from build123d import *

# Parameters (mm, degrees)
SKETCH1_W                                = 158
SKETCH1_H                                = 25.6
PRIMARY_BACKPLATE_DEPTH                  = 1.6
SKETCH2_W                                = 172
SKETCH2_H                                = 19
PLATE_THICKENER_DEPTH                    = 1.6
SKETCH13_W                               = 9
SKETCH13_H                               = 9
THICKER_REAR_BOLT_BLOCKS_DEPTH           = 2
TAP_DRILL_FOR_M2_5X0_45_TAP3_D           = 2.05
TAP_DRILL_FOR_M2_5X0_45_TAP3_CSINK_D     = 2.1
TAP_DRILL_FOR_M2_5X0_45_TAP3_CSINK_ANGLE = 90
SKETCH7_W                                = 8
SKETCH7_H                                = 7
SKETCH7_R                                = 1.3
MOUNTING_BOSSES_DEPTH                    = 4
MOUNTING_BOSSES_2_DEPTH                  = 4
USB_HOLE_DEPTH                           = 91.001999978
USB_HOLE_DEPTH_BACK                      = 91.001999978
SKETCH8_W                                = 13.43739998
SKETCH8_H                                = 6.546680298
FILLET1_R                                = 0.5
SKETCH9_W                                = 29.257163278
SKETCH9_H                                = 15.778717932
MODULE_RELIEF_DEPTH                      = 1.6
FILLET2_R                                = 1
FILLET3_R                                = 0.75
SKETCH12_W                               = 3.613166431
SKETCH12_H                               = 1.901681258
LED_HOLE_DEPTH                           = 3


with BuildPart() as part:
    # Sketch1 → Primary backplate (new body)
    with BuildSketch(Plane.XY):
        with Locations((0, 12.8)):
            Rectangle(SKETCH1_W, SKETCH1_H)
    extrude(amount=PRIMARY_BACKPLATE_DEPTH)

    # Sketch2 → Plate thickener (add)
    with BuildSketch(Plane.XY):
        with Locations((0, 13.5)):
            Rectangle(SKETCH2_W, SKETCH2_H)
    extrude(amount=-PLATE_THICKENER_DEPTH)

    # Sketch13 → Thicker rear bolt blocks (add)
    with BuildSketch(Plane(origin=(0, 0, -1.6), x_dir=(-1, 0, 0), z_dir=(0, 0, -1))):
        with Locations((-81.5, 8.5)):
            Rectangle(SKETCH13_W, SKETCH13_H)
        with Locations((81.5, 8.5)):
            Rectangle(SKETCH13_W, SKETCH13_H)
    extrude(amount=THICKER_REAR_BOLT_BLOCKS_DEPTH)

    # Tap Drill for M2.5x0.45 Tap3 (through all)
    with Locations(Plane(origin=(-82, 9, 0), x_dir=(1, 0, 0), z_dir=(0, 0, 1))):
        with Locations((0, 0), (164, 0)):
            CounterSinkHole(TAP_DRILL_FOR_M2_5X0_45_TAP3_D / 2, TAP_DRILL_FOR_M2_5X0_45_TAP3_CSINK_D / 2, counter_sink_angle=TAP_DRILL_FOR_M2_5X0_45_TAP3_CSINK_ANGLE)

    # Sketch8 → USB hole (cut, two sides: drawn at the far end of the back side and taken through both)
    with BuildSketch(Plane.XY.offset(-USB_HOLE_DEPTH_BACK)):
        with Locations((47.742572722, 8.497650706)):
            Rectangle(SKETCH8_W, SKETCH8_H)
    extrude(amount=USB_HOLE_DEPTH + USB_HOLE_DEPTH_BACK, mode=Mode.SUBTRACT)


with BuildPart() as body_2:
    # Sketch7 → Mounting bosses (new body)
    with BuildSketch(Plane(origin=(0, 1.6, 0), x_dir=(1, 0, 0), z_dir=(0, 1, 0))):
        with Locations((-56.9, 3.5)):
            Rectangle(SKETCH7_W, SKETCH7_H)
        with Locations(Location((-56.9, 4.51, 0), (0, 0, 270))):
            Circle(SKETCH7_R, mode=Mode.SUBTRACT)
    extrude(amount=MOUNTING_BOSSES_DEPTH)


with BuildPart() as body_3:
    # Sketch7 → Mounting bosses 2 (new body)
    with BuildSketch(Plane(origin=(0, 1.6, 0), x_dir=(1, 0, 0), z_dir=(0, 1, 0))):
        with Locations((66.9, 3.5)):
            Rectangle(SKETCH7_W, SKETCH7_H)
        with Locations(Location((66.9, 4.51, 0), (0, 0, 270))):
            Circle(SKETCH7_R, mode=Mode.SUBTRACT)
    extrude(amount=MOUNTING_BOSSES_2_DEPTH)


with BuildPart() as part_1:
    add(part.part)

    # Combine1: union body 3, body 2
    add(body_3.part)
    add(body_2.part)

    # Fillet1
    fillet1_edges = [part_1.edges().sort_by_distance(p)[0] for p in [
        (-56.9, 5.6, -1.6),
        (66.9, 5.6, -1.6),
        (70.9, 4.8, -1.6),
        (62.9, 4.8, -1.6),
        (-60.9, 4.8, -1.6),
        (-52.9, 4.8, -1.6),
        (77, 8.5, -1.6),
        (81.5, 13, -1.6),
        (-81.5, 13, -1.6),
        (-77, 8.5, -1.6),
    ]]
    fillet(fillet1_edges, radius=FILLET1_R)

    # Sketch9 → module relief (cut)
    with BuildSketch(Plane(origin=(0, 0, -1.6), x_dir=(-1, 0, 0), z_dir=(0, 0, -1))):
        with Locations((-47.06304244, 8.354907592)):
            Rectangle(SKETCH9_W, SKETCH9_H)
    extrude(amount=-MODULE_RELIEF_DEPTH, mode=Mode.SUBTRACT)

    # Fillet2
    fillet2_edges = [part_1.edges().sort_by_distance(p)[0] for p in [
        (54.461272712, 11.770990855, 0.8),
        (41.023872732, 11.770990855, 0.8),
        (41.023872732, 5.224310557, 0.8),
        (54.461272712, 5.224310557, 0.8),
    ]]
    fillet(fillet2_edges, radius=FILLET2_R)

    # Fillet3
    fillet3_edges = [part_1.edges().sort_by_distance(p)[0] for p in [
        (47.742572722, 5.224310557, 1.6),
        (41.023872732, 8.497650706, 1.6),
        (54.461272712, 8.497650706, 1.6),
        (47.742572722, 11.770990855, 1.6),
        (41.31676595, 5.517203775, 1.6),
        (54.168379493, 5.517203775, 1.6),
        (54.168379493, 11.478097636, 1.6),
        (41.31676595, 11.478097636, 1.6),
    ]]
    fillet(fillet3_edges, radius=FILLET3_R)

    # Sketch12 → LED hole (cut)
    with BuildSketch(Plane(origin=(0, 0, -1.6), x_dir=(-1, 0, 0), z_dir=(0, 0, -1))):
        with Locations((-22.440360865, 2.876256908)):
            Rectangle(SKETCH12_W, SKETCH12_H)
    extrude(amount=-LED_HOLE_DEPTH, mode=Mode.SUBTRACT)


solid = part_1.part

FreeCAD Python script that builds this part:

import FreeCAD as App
import Part
import Sketcher

V = App.Vector
Q = App.Units.Quantity


def edges_at(feature, points):
    """Names of the edges that pass closest to the given points."""
    edges = feature.Shape.Edges
    near = lambda p: min(range(len(edges)), key=lambda i: edges[i].distToShape(Part.Vertex(*p))[0])
    return sorted({f"Edge{near(p) + 1}" for p in points})

doc = App.newDocument("Part")
body = doc.addObject("PartDesign::Body", "Body")

sketch1 = body.newObject("Sketcher::SketchObject", "Sketch")
sketch1.AttachmentSupport = (doc.getObject("XY_Plane"), [""])
sketch1.MapMode = "FlatFace"
sketch1.addGeometry([
    Part.LineSegment(V(-79, 26, 0), V(-79, 0, 0)),
    Part.LineSegment(V(-79, 0, 0), V(79, 0, 0)),
    Part.LineSegment(V(79, 0, 0), V(79, 26, 0)),
    Part.LineSegment(V(79, 26, 0), V(-79, 26, 0)),
], False)
sketch1.addConstraint([
    Sketcher.Constraint("Coincident", 0, 2, 1, 1),
    Sketcher.Constraint("Coincident", 1, 2, 2, 1),
    Sketcher.Constraint("Coincident", 2, 2, 3, 1),
    Sketcher.Constraint("Coincident", 3, 2, 0, 1),
    Sketcher.Constraint("Vertical", 0),
    Sketcher.Constraint("Horizontal", 1),
    Sketcher.Constraint("Vertical", 2),
    Sketcher.Constraint("Horizontal", 3),
    Sketcher.Constraint("Symmetric", 0, 2, 1, 2, -1, 1),
    Sketcher.Constraint("DistanceX", 1, 1, 1, 2, Q("158 mm")),
    Sketcher.Constraint("DistanceY", 0, 2, 0, 1, Q("25.6 mm")),
])
pad1 = body.newObject("PartDesign::Pad", "Pad")
pad1.Profile = sketch1
pad1.Length = 1.6

sketch2 = body.newObject("Sketcher::SketchObject", "Sketch001")
sketch2.AttachmentSupport = (doc.getObject("XY_Plane"), [""])
sketch2.MapMode = "FlatFace"
sketch2.addGeometry([
    Part.LineSegment(V(-86, 23, 0), V(-86, 4, 0)),
    Part.LineSegment(V(-86, 4, 0), V(86, 4, 0)),
    Part.LineSegment(V(86, 4, 0), V(86, 23, 0)),
    Part.LineSegment(V(86, 23, 0), V(-86, 23, 0)),
], False)
sketch2.addConstraint([
    Sketcher.Constraint("Coincident", 0, 2, 1, 1),
    Sketcher.Constraint("Coincident", 1, 2, 2, 1),
    Sketcher.Constraint("Coincident", 2, 2, 3, 1),
    Sketcher.Constraint("Coincident", 3, 2, 0, 1),
    Sketcher.Constraint("Vertical", 0),
    Sketcher.Constraint("Horizontal", 1),
    Sketcher.Constraint("Vertical", 2),
    Sketcher.Constraint("Horizontal", 3),
    Sketcher.Constraint("DistanceX", 1, 1, 1, 2, Q("172 mm")),
    Sketcher.Constraint("DistanceY", 0, 2, 0, 1, Q("19 mm")),
    Sketcher.Constraint("DistanceX", 0, 2, -1, 1, Q("86 mm")),
    Sketcher.Constraint("DistanceY", -1, 1, 0, 2, Q("4 mm")),
])
pad2 = body.newObject("PartDesign::Pad", "Pad001")
pad2.Profile = sketch2
pad2.Length = 1.6
pad2.Reversed = True

sketch3 = body.newObject("Sketcher::SketchObject", "Sketch002")
sketch3.AttachmentSupport = (doc.getObject("XY_Plane"), [""])
sketch3.MapMode = "FlatFace"
sketch3.AttachmentOffset = App.Placement(V(0, 0, -1.6), App.Rotation())
sketch3.addGeometry([
    Part.LineSegment(V(86, 13, 0), V(86, 4, 0)),
    Part.LineSegment(V(86, 4, 0), V(77, 4, 0)),
    Part.LineSegment(V(77, 4, 0), V(77, 13, 0)),
    Part.LineSegment(V(77, 13, 0), V(86, 13, 0)),
    Part.LineSegment(V(-77, 13, 0), V(-77, 4, 0)),
    Part.LineSegment(V(-77, 4, 0), V(-86, 4, 0)),
    Part.LineSegment(V(-86, 4, 0), V(-86, 13, 0)),
    Part.LineSegment(V(-86, 13, 0), V(-77, 13, 0)),
], False)
sketch3.addConstraint([
    Sketcher.Constraint("Coincident", 0, 2, 1, 1),
    Sketcher.Constraint("Coincident", 1, 2, 2, 1),
    Sketcher.Constraint("Coincident", 2, 2, 3, 1),
    Sketcher.Constraint("Coincident", 3, 2, 0, 1),
    Sketcher.Constraint("Coincident", 4, 2, 5, 1),
    Sketcher.Constraint("Coincident", 5, 2, 6, 1),
    Sketcher.Constraint("Coincident", 6, 2, 7, 1),
    Sketcher.Constraint("Coincident", 7, 2, 4, 1),
    Sketcher.Constraint("Vertical", 0),
    Sketcher.Constraint("Horizontal", 1),
    Sketcher.Constraint("Vertical", 2),
    Sketcher.Constraint("Horizontal", 3),
    Sketcher.Constraint("Vertical", 4),
    Sketcher.Constraint("Horizontal", 5),
    Sketcher.Constraint("Vertical", 6),
    Sketcher.Constraint("Horizontal", 7),
    Sketcher.Constraint("Symmetric", 1, 2, 4, 2, -2),
    Sketcher.Constraint("Symmetric", 3, 2, 6, 2, -2),
    Sketcher.Constraint("Equal", 7, 0),
    Sketcher.Constraint("DistanceX", 1, 2, 1, 1, Q("9 mm")),
    Sketcher.Constraint("DistanceX", -1, 1, 0, 2, Q("86 mm")),
    Sketcher.Constraint("DistanceY", -1, 1, 0, 2, Q("4 mm")),
])
pad3 = body.newObject("PartDesign::Pad", "Pad002")
pad3.Profile = sketch3
pad3.Length = 2
pad3.Reversed = True

sketch4 = body.newObject("Sketcher::SketchObject", "Sketch003")
sketch4.AttachmentSupport = (doc.getObject("XY_Plane"), [""])
sketch4.MapMode = "FlatFace"
sketch4.addGeometry([
    Part.Circle(V(-82, 9, 0), V(0, 0, 1), 1),
    Part.Circle(V(82, 9, 0), V(0, 0, 1), 1),
], False)
sketch4.addConstraint([
    Sketcher.Constraint("Equal", 0, 1),
    Sketcher.Constraint("Symmetric", 0, 3, 1, 3, -2),
    Sketcher.Constraint("Diameter", 0, Q("2.05 mm")),
    Sketcher.Constraint("DistanceX", 0, 3, -1, 1, Q("82 mm")),
    Sketcher.Constraint("DistanceY", -1, 1, 0, 3, Q("9 mm")),
])
doc.recompute()
hole = body.newObject("PartDesign::Hole", "Hole")
hole.Profile = sketch4
hole.ThreadType = "None"
hole.Diameter = 2.05
hole.DepthType = "ThroughAll"
hole.HoleCutType = "Countersink"
hole.HoleCutDiameter = 2.1
hole.HoleCutCountersinkAngle = 90

sketch5 = body.newObject("Sketcher::SketchObject", "Sketch004")
sketch5.AttachmentSupport = (doc.getObject("XY_Plane"), [""])
sketch5.MapMode = "FlatFace"
sketch5.addGeometry([
    Part.LineSegment(V(41, 12, 0), V(41, 5, 0)),
    Part.LineSegment(V(41, 5, 0), V(54, 5, 0)),
    Part.LineSegment(V(54, 5, 0), V(54, 12, 0)),
    Part.LineSegment(V(54, 12, 0), V(41, 12, 0)),
], False)
sketch5.addConstraint([
    Sketcher.Constraint("Coincident", 0, 2, 1, 1),
    Sketcher.Constraint("Coincident", 1, 2, 2, 1),
    Sketcher.Constraint("Coincident", 2, 2, 3, 1),
    Sketcher.Constraint("Coincident", 3, 2, 0, 1),
    Sketcher.Constraint("Vertical", 0),
    Sketcher.Constraint("Horizontal", 1),
    Sketcher.Constraint("Vertical", 2),
    Sketcher.Constraint("Horizontal", 3),
    Sketcher.Constraint("DistanceX", 1, 1, 1, 2, Q("13.4374 mm")),
    Sketcher.Constraint("DistanceY", 0, 2, 0, 1, Q("6.54668 mm")),
    Sketcher.Constraint("DistanceY", -1, 1, 0, 2, Q("5.224311 mm")),
    Sketcher.Constraint("DistanceX", -1, 1, 0, 2, Q("41.023873 mm")),
])
pocket1 = body.newObject("PartDesign::Pocket", "Pocket")
pocket1.Profile = sketch5
pocket1.Type = "ThroughAll"
pocket1.Midplane = True
body2 = doc.addObject("PartDesign::Body", "Body001")

sketch6 = body2.newObject("Sketcher::SketchObject", "Sketch005")
sketch6.AttachmentSupport = (doc.getObject("XZ_Plane001"), [""])
sketch6.MapMode = "FlatFace"
sketch6.AttachmentOffset = App.Placement(V(0, 0, -1.6), App.Rotation())
sketch6.addGeometry([
    Part.LineSegment(V(-60.9, -7, 0), V(-60.9, 0, 0)),
    Part.LineSegment(V(-60.9, 0, 0), V(-52.9, 0, 0)),
    Part.LineSegment(V(-52.9, 0, 0), V(-52.9, -7, 0)),
    Part.LineSegment(V(-52.9, -7, 0), V(-60.9, -7, 0)),
    Part.Circle(V(-56.9, -4.5, 0), V(0, 0, 1), 1.3),
], False)
sketch6.addConstraint([
    Sketcher.Constraint("Coincident", 0, 2, 1, 1),
    Sketcher.Constraint("Coincident", 1, 2, 2, 1),
    Sketcher.Constraint("Coincident", 2, 2, 3, 1),
    Sketcher.Constraint("Coincident", 3, 2, 0, 1),
    Sketcher.Constraint("Vertical", 0),
    Sketcher.Constraint("Horizontal", 1),
    Sketcher.Constraint("Vertical", 2),
    Sketcher.Constraint("Horizontal", 3),
    Sketcher.Constraint("PointOnObject", 0, 2, -1),
    Sketcher.Constraint("Diameter", 4, Q("2.6 mm")),
    Sketcher.Constraint("DistanceX", 1, 1, 1, 2, Q("8 mm")),
    Sketcher.Constraint("DistanceY", 0, 1, 0, 2, Q("7 mm")),
    Sketcher.Constraint("DistanceX", 0, 2, 4, 3, Q("4 mm")),
    Sketcher.Constraint("DistanceX", 4, 3, -1, 1, Q("56.9 mm")),
    Sketcher.Constraint("DistanceY", 4, 3, -1, 1, Q("4.51 mm")),
])
pad4 = body2.newObject("PartDesign::Pad", "Pad003")
pad4.Profile = sketch6
pad4.Length = 4
pad4.Reversed = True
body3 = doc.addObject("PartDesign::Body", "Body002")

sketch7 = body3.newObject("Sketcher::SketchObject", "Sketch006")
sketch7.AttachmentSupport = (doc.getObject("XZ_Plane002"), [""])
sketch7.MapMode = "FlatFace"
sketch7.AttachmentOffset = App.Placement(V(0, 0, -1.6), App.Rotation())
sketch7.addGeometry([
    Part.LineSegment(V(62.9, -7, 0), V(62.9, 0, 0)),
    Part.LineSegment(V(62.9, 0, 0), V(70.9, 0, 0)),
    Part.LineSegment(V(70.9, 0, 0), V(70.9, -7, 0)),
    Part.LineSegment(V(70.9, -7, 0), V(62.9, -7, 0)),
    Part.Circle(V(66.9, -4.5, 0), V(0, 0, 1), 1.3),
], False)
sketch7.addConstraint([
    Sketcher.Constraint("Coincident", 0, 2, 1, 1),
    Sketcher.Constraint("Coincident", 1, 2, 2, 1),
    Sketcher.Constraint("Coincident", 2, 2, 3, 1),
    Sketcher.Constraint("Coincident", 3, 2, 0, 1),
    Sketcher.Constraint("Vertical", 0),
    Sketcher.Constraint("Horizontal", 1),
    Sketcher.Constraint("Vertical", 2),
    Sketcher.Constraint("Horizontal", 3),
    Sketcher.Constraint("PointOnObject", 0, 2, -1),
    Sketcher.Constraint("Diameter", 4, Q("2.6 mm")),
    Sketcher.Constraint("DistanceX", 1, 1, 1, 2, Q("8 mm")),
    Sketcher.Constraint("DistanceY", 0, 1, 0, 2, Q("7 mm")),
    Sketcher.Constraint("DistanceX", 0, 2, 4, 3, Q("4 mm")),
    Sketcher.Constraint("DistanceX", -1, 1, 4, 3, Q("66.9 mm")),
    Sketcher.Constraint("DistanceY", 4, 3, -1, 1, Q("4.51 mm")),
])
pad5 = body3.newObject("PartDesign::Pad", "Pad004")
pad5.Profile = sketch7
pad5.Length = 4
pad5.Reversed = True
doc.recompute()

boolean = body.newObject("PartDesign::Boolean", "Boolean")
boolean.Type = "Fuse"
boolean.addObjects([body3])
doc.recompute()

boolean2 = body.newObject("PartDesign::Boolean", "Boolean001")
boolean2.Type = "Fuse"
boolean2.addObjects([body2])
doc.recompute()

fillet = body.newObject("PartDesign::Fillet", "Fillet")
fillet.Base = (boolean2, edges_at(boolean2, [
    (-56.9, 5.6, -1.6),
    (66.9, 5.6, -1.6),
    (70.9, 4.8, -1.6),
    (62.9, 4.8, -1.6),
    (-60.9, 4.8, -1.6),
    (-52.9, 4.8, -1.6),
    (77, 8.5, -1.6),
    (81.5, 13, -1.6),
    (-81.5, 13, -1.6),
    (-77, 8.5, -1.6),
]))
fillet.Radius = 0.5

sketch8 = body.newObject("Sketcher::SketchObject", "Sketch007")
sketch8.AttachmentSupport = (doc.getObject("XY_Plane"), [""])
sketch8.MapMode = "FlatFace"
sketch8.AttachmentOffset = App.Placement(V(0, 0, -1.6), App.Rotation())
sketch8.addGeometry([
    Part.LineSegment(V(62, 16, 0), V(62, 0, 0)),
    Part.LineSegment(V(62, 0, 0), V(32, 0, 0)),
    Part.LineSegment(V(32, 0, 0), V(32, 16, 0)),
    Part.LineSegment(V(32, 16, 0), V(62, 16, 0)),
], False)
sketch8.addConstraint([
    Sketcher.Constraint("Coincident", 0, 2, 1, 1),
    Sketcher.Constraint("Coincident", 1, 2, 2, 1),
    Sketcher.Constraint("Coincident", 2, 2, 3, 1),
    Sketcher.Constraint("Coincident", 3, 2, 0, 1),
    Sketcher.Constraint("Vertical", 0),
    Sketcher.Constraint("Horizontal", 1),
    Sketcher.Constraint("Vertical", 2),
    Sketcher.Constraint("Horizontal", 3),
    Sketcher.Constraint("DistanceX", 1, 2, 1, 1, Q("29.257163 mm")),
    Sketcher.Constraint("DistanceY", 0, 2, 0, 1, Q("15.778718 mm")),
    Sketcher.Constraint("DistanceY", -1, 1, 0, 2, Q("0.465549 mm")),
    Sketcher.Constraint("DistanceX", -1, 1, 1, 2, Q("32.434461 mm")),
])
pocket2 = body.newObject("PartDesign::Pocket", "Pocket001")
pocket2.Profile = sketch8
pocket2.Length = 1.6
pocket2.Reversed = True
doc.recompute()

fillet2 = body.newObject("PartDesign::Fillet", "Fillet001")
fillet2.Base = (pocket2, edges_at(pocket2, [
    (54.461, 11.771, 0.8),
    (41.024, 11.771, 0.8),
    (41.024, 5.224, 0.8),
    (54.461, 5.224, 0.8),
]))
fillet2.Radius = 1
doc.recompute()

fillet3 = body.newObject("PartDesign::Fillet", "Fillet002")
fillet3.Base = (fillet2, edges_at(fillet2, [
    (47.743, 5.224, 1.6),
    (41.024, 8.498, 1.6),
    (54.461, 8.498, 1.6),
    (47.743, 11.771, 1.6),
    (41.317, 5.517, 1.6),
    (54.168, 5.517, 1.6),
    (54.168, 11.478, 1.6),
    (41.317, 11.478, 1.6),
]))
fillet3.Radius = 0.75

sketch9 = body.newObject("Sketcher::SketchObject", "Sketch008")
sketch9.AttachmentSupport = (doc.getObject("XY_Plane"), [""])
sketch9.MapMode = "FlatFace"
sketch9.AttachmentOffset = App.Placement(V(0, 0, -1.6), App.Rotation())
sketch9.addGeometry([
    Part.LineSegment(V(24.2, 3.8, 0), V(24.2, 1.9, 0)),
    Part.LineSegment(V(24.2, 1.9, 0), V(20.6, 1.9, 0)),
    Part.LineSegment(V(20.6, 1.9, 0), V(20.6, 3.8, 0)),
    Part.LineSegment(V(20.6, 3.8, 0), V(24.2, 3.8, 0)),
], False)
sketch9.addConstraint([
    Sketcher.Constraint("Coincident", 0, 2, 1, 1),
    Sketcher.Constraint("Coincident", 1, 2, 2, 1),
    Sketcher.Constraint("Coincident", 2, 2, 3, 1),
    Sketcher.Constraint("Coincident", 3, 2, 0, 1),
    Sketcher.Constraint("Vertical", 0),
    Sketcher.Constraint("Horizontal", 1),
    Sketcher.Constraint("Vertical", 2),
    Sketcher.Constraint("Horizontal", 3),
    Sketcher.Constraint("DistanceY", 0, 2, 0, 1, Q("1.901681 mm")),
    Sketcher.Constraint("DistanceX", 1, 2, 1, 1, Q("3.613166 mm")),
    Sketcher.Constraint("DistanceX", -1, 1, 0, 2, Q("24.246944 mm")),
    Sketcher.Constraint("DistanceY", -1, 1, 0, 2, Q("1.925416 mm")),
])
pocket3 = body.newObject("PartDesign::Pocket", "Pocket002")
pocket3.Profile = sketch9
pocket3.Length = 3
pocket3.Reversed = True

doc.recompute()
